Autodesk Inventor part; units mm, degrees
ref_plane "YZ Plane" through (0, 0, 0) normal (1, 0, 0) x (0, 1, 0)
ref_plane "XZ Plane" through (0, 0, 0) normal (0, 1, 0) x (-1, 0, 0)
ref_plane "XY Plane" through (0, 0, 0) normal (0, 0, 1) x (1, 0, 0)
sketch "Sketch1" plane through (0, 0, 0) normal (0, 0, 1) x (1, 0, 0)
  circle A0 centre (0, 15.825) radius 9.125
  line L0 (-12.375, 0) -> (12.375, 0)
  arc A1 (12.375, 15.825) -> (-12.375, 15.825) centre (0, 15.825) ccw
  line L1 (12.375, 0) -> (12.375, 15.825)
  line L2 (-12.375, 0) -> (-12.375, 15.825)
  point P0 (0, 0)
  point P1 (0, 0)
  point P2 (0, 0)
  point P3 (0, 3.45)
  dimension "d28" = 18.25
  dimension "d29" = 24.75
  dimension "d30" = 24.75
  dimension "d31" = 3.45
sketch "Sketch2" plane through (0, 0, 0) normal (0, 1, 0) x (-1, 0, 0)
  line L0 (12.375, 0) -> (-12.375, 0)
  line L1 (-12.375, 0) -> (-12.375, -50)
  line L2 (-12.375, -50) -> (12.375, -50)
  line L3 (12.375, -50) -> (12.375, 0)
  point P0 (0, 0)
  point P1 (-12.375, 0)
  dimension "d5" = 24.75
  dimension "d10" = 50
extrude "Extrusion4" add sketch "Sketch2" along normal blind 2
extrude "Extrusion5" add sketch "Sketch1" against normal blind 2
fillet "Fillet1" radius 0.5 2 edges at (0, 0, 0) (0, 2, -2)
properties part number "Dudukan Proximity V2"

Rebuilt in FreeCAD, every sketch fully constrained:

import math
import FreeCAD as App
import Part
import Sketcher


def edges_at(feature, points):
    """Names of the edges that pass closest to the given points."""
    edges = feature.Shape.Edges
    near = lambda p: min(range(len(edges)), key=lambda i: edges[i].distToShape(Part.Vertex(*p))[0])
    return sorted({f"Edge{near(p) + 1}" for p in points})

doc = App.newDocument("Part")
body = doc.addObject("PartDesign::Body", "Body")

# Sketch on XZ plane
sketch1 = doc.addObject("Sketcher::SketchObject", "Sketch")
body.addObject(sketch1)
sketch1.AttachmentSupport = (doc.XZ_Plane, [""])
sketch1.MapMode = "FlatFace"
sketch1.addGeometry(Part.LineSegment(App.Vector(-12, -50, 0), App.Vector(-12, 0, 0)), False)
sketch1.addGeometry(Part.LineSegment(App.Vector(-12, 0, 0), App.Vector(12, 0, 0)), False)
sketch1.addGeometry(Part.LineSegment(App.Vector(12, 0, 0), App.Vector(12, -50, 0)), False)
sketch1.addGeometry(Part.LineSegment(App.Vector(12, -50, 0), App.Vector(-12, -50, 0)), False)
sketch1.addConstraint(Sketcher.Constraint("Coincident", 0, 2, 1, 1))
sketch1.addConstraint(Sketcher.Constraint("Coincident", 1, 2, 2, 1))
sketch1.addConstraint(Sketcher.Constraint("Coincident", 2, 2, 3, 1))
sketch1.addConstraint(Sketcher.Constraint("Coincident", 3, 2, 0, 1))
sketch1.addConstraint(Sketcher.Constraint("Vertical", 0))
sketch1.addConstraint(Sketcher.Constraint("Horizontal", 1))
sketch1.addConstraint(Sketcher.Constraint("Vertical", 2))
sketch1.addConstraint(Sketcher.Constraint("Horizontal", 3))
sketch1.addConstraint(Sketcher.Constraint("Symmetric", 0, 2, 1, 2, -1, 1))
sketch1.addConstraint(Sketcher.Constraint("DistanceY", 0, 1, 0, 2, 50.0))
sketch1.addConstraint(Sketcher.Constraint("DistanceX", 1, 1, 1, 2, 24.75))
pad1 = doc.addObject("PartDesign::Pad", "Pad")
body.addObject(pad1)
pad1.Profile = sketch1
pad1.Length = 2
pad1.Reversed = True

# Sketch on XY plane
sketch2 = doc.addObject("Sketcher::SketchObject", "Sketch001")
body.addObject(sketch2)
sketch2.AttachmentSupport = (doc.XY_Plane, [""])
sketch2.MapMode = "FlatFace"
sketch2.addGeometry(Part.LineSegment(App.Vector(-12, 16, 0), App.Vector(-12, 0, 0)), False)
sketch2.addGeometry(Part.LineSegment(App.Vector(-12, 0, 0), App.Vector(12, 0, 0)), False)
sketch2.addGeometry(Part.LineSegment(App.Vector(12, 0, 0), App.Vector(12, 16, 0)), False)
sketch2.addGeometry(Part.ArcOfCircle(Part.Circle(App.Vector(0, 16, 0), App.Vector(0, 0, 1), 12), math.radians(0), math.radians(180)), False)
sketch2.addGeometry(Part.Circle(App.Vector(0, 16, 0), App.Vector(0, 0, 1), 9), False)
sketch2.addConstraint(Sketcher.Constraint("Coincident", 0, 2, 1, 1))
sketch2.addConstraint(Sketcher.Constraint("Coincident", 1, 2, 2, 1))
sketch2.addConstraint(Sketcher.Constraint("Tangent", 2, 2, 3, 1))
sketch2.addConstraint(Sketcher.Constraint("Tangent", 3, 2, 0, 1))
sketch2.addConstraint(Sketcher.Constraint("Vertical", 0))
sketch2.addConstraint(Sketcher.Constraint("Horizontal", 1))
sketch2.addConstraint(Sketcher.Constraint("Vertical", 2))
sketch2.addConstraint(Sketcher.Constraint("Coincident", 4, 3, 3, 3))
sketch2.addConstraint(Sketcher.Constraint("Symmetric", 0, 2, 1, 2, -1, 1))
sketch2.addConstraint(Sketcher.Constraint("Diameter", 4, 18.25))
sketch2.addConstraint(Sketcher.Constraint("Radius", 3, 12.375))
sketch2.addConstraint(Sketcher.Constraint("DistanceY", 0, 2, 0, 1, 15.825))
pad2 = doc.addObject("PartDesign::Pad", "Pad001")
body.addObject(pad2)
pad2.Profile = sketch2
pad2.Length = 2
pad2.Reversed = True
doc.recompute()

fillet = doc.addObject("PartDesign::Fillet", "Fillet")
body.addObject(fillet)
fillet.Base = (pad2, edges_at(pad2, [(0, 0, 0), (0, 2, -2)]))
fillet.Radius = 0.5

doc.recompute()
